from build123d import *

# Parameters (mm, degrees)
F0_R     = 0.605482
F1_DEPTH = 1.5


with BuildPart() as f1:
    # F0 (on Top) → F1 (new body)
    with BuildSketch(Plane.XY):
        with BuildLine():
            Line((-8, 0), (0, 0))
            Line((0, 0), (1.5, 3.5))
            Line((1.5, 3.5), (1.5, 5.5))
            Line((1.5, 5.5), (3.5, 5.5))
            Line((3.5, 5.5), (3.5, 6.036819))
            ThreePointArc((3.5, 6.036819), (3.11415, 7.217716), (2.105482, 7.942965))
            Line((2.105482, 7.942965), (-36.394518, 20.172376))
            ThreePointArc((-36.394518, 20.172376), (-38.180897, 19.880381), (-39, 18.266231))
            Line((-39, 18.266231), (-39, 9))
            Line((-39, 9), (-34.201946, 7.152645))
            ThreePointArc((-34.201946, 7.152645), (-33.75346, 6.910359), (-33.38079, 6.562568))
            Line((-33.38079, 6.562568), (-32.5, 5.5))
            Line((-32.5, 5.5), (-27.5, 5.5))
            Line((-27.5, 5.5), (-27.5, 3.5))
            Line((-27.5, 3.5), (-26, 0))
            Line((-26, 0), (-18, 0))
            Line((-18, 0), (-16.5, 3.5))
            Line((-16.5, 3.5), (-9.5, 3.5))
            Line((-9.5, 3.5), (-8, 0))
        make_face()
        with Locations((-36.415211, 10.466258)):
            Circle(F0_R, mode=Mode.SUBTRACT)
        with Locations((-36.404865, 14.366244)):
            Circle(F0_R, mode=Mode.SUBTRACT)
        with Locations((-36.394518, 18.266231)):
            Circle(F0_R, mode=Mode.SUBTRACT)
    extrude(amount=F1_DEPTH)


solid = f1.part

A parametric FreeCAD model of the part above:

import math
import FreeCAD as App
import Part
import Sketcher
Q = App.Units.Quantity

doc = App.newDocument("Part")
body = doc.addObject("PartDesign::Body", "Body")

# Sketch on XY plane
sketch1 = body.newObject("Sketcher::SketchObject", "Sketch")
sketch1.AttachmentSupport = (doc.getObject("XY_Plane"), [""])
sketch1.MapMode = "FlatFace"
sketch1.addGeometry(Part.LineSegment(App.Vector(-8, 0, 0), App.Vector(0, 0, 0)), False)
sketch1.addGeometry(Part.LineSegment(App.Vector(0, 0, 0), App.Vector(1.5, 3.5, 0)), False)
sketch1.addGeometry(Part.LineSegment(App.Vector(1.5, 3.5, 0), App.Vector(1.5, 5.5, 0)), False)
sketch1.addGeometry(Part.LineSegment(App.Vector(1.5, 5.5, 0), App.Vector(3.5, 5.5, 0)), False)
sketch1.addGeometry(Part.LineSegment(App.Vector(3.5, 5.5, 0), App.Vector(3.5, 6, 0)), False)
sketch1.addGeometry(Part.ArcOfCircle(Part.Circle(App.Vector(1.5, 6, 0), App.Vector(0, 0, 1), 2), math.radians(0), math.radians(72)), False)
sketch1.addGeometry(Part.LineSegment(App.Vector(2.1, 7.9, 0), App.Vector(-36.4, 20.2, 0)), False)
sketch1.addGeometry(Part.ArcOfCircle(Part.Circle(App.Vector(-37, 18.3, 0), App.Vector(0, 0, 1), 2), math.radians(72), math.radians(180)), False)
sketch1.addGeometry(Part.LineSegment(App.Vector(-39, 18.3, 0), App.Vector(-39, 9, 0)), False)
sketch1.addGeometry(Part.LineSegment(App.Vector(-39, 9, 0), App.Vector(-34.2, 7.2, 0)), False)
sketch1.addGeometry(Part.ArcOfCircle(Part.Circle(App.Vector(-34.9, 5.3, 0), App.Vector(0, 0, 1), 2), math.radians(40), math.radians(69)), False)
sketch1.addGeometry(Part.LineSegment(App.Vector(-33.4, 6.6, 0), App.Vector(-32.5, 5.5, 0)), False)
sketch1.addGeometry(Part.LineSegment(App.Vector(-32.5, 5.5, 0), App.Vector(-27.5, 5.5, 0)), False)
sketch1.addGeometry(Part.LineSegment(App.Vector(-27.5, 5.5, 0), App.Vector(-27.5, 3.5, 0)), False)
sketch1.addGeometry(Part.LineSegment(App.Vector(-27.5, 3.5, 0), App.Vector(-26, 0, 0)), False)
sketch1.addGeometry(Part.LineSegment(App.Vector(-26, 0, 0), App.Vector(-18, 0, 0)), False)
sketch1.addGeometry(Part.LineSegment(App.Vector(-18, 0, 0), App.Vector(-16.5, 3.5, 0)), False)
sketch1.addGeometry(Part.LineSegment(App.Vector(-16.5, 3.5, 0), App.Vector(-9.5, 3.5, 0)), False)
sketch1.addGeometry(Part.LineSegment(App.Vector(-9.5, 3.5, 0), App.Vector(-8, 0, 0)), False)
sketch1.addGeometry(Part.Circle(App.Vector(-36.4, 10.5, 0), App.Vector(0, 0, 1), 0.6), False)
sketch1.addGeometry(Part.Circle(App.Vector(-36.4, 14.4, 0), App.Vector(0, 0, 1), 0.6), False)
sketch1.addGeometry(Part.Circle(App.Vector(-36.4, 18.3, 0), App.Vector(0, 0, 1), 0.6), False)
sketch1.addConstraint(Sketcher.Constraint("Coincident", 0, 2, 1, 1))
sketch1.addConstraint(Sketcher.Constraint("Coincident", 1, 2, 2, 1))
sketch1.addConstraint(Sketcher.Constraint("Coincident", 2, 2, 3, 1))
sketch1.addConstraint(Sketcher.Constraint("Coincident", 3, 2, 4, 1))
sketch1.addConstraint(Sketcher.Constraint("Tangent", 4, 2, 5, 1))
sketch1.addConstraint(Sketcher.Constraint("Tangent", 5, 2, 6, 1))
sketch1.addConstraint(Sketcher.Constraint("Tangent", 6, 2, 7, 1))
sketch1.addConstraint(Sketcher.Constraint("Tangent", 7, 2, 8, 1))
sketch1.addConstraint(Sketcher.Constraint("Coincident", 8, 2, 9, 1))
sketch1.addConstraint(Sketcher.Constraint("Tangent", 9, 2, 10, 2))
sketch1.addConstraint(Sketcher.Constraint("Tangent", 10, 1, 11, 1))
sketch1.addConstraint(Sketcher.Constraint("Coincident", 11, 2, 12, 1))
sketch1.addConstraint(Sketcher.Constraint("Coincident", 12, 2, 13, 1))
sketch1.addConstraint(Sketcher.Constraint("Coincident", 13, 2, 14, 1))
sketch1.addConstraint(Sketcher.Constraint("Coincident", 14, 2, 15, 1))
sketch1.addConstraint(Sketcher.Constraint("Coincident", 15, 2, 16, 1))
sketch1.addConstraint(Sketcher.Constraint("Coincident", 16, 2, 17, 1))
sketch1.addConstraint(Sketcher.Constraint("Coincident", 17, 2, 18, 1))
sketch1.addConstraint(Sketcher.Constraint("Coincident", 18, 2, 0, 1))
sketch1.addConstraint(Sketcher.Constraint("Horizontal", 0))
sketch1.addConstraint(Sketcher.Constraint("Vertical", 2))
sketch1.addConstraint(Sketcher.Constraint("Horizontal", 3))
sketch1.addConstraint(Sketcher.Constraint("Vertical", 4))
sketch1.addConstraint(Sketcher.Constraint("Vertical", 8))
sketch1.addConstraint(Sketcher.Constraint("Horizontal", 12))
sketch1.addConstraint(Sketcher.Constraint("Vertical", 13))
sketch1.addConstraint(Sketcher.Constraint("Horizontal", 15))
sketch1.addConstraint(Sketcher.Constraint("Horizontal", 17))
sketch1.addConstraint(Sketcher.Constraint("Coincident", 0, 2, -1, 1))
sketch1.addConstraint(Sketcher.Constraint("Equal", 5, 10))
sketch1.addConstraint(Sketcher.Constraint("Equal", 19, 20))
sketch1.addConstraint(Sketcher.Constraint("Equal", 20, 21))
sketch1.addConstraint(Sketcher.Constraint("PointOnObject", 14, 2, -1))
sketch1.addConstraint(Sketcher.Constraint("Parallel", 1, 16))
sketch1.addConstraint(Sketcher.Constraint("Parallel", 14, 18))
sketch1.addConstraint(Sketcher.Constraint("Horizontal", 7, 3, 21, 3))
sketch1.addConstraint(Sketcher.Constraint("Horizontal", 3, 2, 11, 2))
sketch1.addConstraint(Sketcher.Constraint("Horizontal", 1, 2, 13, 2))
sketch1.addConstraint(Sketcher.Constraint("Horizontal", 13, 2, 16, 2))
sketch1.addConstraint(Sketcher.Constraint("Vertical", 21, 3, 6, 2))
sketch1.addConstraint(Sketcher.Constraint("Equal", 0, 15))
sketch1.addConstraint(Sketcher.Constraint("Equal", 3, 2))
sketch1.addConstraint(Sketcher.Constraint("Equal", 1, 14))
sketch1.addConstraint(Sketcher.Constraint("Radius", 7, Q("2 mm")))
sketch1.addConstraint(Sketcher.Constraint("DistanceX", 0, 1, 0, 2, Q("8 mm")))
sketch1.addConstraint(Sketcher.Constraint("DistanceX", 3, 1, 3, 2, Q("2 mm")))
sketch1.addConstraint(Sketcher.Constraint("DistanceX", 12, 1, 12, 2, Q("5 mm")))
sketch1.addConstraint(Sketcher.Constraint("DistanceX", 17, 1, 17, 2, Q("7 mm")))
sketch1.addConstraint(Sketcher.Constraint("DistanceX", 7, 3, -1, 1, Q("37 mm")))
sketch1.addConstraint(Sketcher.Constraint("DistanceY", -1, 1, 8, 2, Q("9 mm")))
sketch1.addConstraint(Sketcher.Constraint("DistanceX", 14, 2, -1, 1, Q("26 mm")))
sketch1.addConstraint(Sketcher.Constraint("DistanceY", -1, 1, 1, 2, Q("3.5 mm")))
sketch1.addConstraint(Sketcher.Constraint("Diameter", 19, Q("1.210964 mm")))
sketch1.addConstraint(Sketcher.Constraint("Radius", 5, Q("2.000003 mm")))
sketch1.addConstraint(Sketcher.Constraint("DistanceY", 4, 1, 4, 2, Q("0.536819 mm")))
sketch1.addConstraint(Sketcher.Constraint("DistanceY", 8, 2, 8, 1, Q("9.266231 mm")))
sketch1.addConstraint(Sketcher.Constraint("DistanceX", 20, 3, 10, 3, Q("1.484298 mm")))
sketch1.addConstraint(Sketcher.Constraint("DistanceY", 9, 2, 20, 3, Q("7.213599 mm")))
sketch1.addConstraint(Sketcher.Constraint("Distance", 11, Q("1.38016 mm")))
sketch1.addConstraint(Sketcher.Constraint("DistanceX", 19, 3, -1, 1, Q("36.415211 mm")))
sketch1.addConstraint(Sketcher.Constraint("DistanceX", 10, 1, -1, 1, Q("33.38079 mm")))
sketch1.addConstraint(Sketcher.Constraint("DistanceY", 5, 3, 19, 3, Q("4.429441 mm")))
pad1 = body.newObject("PartDesign::Pad", "Pad")
pad1.Profile = sketch1
pad1.Length = 1.5

doc.recompute()
